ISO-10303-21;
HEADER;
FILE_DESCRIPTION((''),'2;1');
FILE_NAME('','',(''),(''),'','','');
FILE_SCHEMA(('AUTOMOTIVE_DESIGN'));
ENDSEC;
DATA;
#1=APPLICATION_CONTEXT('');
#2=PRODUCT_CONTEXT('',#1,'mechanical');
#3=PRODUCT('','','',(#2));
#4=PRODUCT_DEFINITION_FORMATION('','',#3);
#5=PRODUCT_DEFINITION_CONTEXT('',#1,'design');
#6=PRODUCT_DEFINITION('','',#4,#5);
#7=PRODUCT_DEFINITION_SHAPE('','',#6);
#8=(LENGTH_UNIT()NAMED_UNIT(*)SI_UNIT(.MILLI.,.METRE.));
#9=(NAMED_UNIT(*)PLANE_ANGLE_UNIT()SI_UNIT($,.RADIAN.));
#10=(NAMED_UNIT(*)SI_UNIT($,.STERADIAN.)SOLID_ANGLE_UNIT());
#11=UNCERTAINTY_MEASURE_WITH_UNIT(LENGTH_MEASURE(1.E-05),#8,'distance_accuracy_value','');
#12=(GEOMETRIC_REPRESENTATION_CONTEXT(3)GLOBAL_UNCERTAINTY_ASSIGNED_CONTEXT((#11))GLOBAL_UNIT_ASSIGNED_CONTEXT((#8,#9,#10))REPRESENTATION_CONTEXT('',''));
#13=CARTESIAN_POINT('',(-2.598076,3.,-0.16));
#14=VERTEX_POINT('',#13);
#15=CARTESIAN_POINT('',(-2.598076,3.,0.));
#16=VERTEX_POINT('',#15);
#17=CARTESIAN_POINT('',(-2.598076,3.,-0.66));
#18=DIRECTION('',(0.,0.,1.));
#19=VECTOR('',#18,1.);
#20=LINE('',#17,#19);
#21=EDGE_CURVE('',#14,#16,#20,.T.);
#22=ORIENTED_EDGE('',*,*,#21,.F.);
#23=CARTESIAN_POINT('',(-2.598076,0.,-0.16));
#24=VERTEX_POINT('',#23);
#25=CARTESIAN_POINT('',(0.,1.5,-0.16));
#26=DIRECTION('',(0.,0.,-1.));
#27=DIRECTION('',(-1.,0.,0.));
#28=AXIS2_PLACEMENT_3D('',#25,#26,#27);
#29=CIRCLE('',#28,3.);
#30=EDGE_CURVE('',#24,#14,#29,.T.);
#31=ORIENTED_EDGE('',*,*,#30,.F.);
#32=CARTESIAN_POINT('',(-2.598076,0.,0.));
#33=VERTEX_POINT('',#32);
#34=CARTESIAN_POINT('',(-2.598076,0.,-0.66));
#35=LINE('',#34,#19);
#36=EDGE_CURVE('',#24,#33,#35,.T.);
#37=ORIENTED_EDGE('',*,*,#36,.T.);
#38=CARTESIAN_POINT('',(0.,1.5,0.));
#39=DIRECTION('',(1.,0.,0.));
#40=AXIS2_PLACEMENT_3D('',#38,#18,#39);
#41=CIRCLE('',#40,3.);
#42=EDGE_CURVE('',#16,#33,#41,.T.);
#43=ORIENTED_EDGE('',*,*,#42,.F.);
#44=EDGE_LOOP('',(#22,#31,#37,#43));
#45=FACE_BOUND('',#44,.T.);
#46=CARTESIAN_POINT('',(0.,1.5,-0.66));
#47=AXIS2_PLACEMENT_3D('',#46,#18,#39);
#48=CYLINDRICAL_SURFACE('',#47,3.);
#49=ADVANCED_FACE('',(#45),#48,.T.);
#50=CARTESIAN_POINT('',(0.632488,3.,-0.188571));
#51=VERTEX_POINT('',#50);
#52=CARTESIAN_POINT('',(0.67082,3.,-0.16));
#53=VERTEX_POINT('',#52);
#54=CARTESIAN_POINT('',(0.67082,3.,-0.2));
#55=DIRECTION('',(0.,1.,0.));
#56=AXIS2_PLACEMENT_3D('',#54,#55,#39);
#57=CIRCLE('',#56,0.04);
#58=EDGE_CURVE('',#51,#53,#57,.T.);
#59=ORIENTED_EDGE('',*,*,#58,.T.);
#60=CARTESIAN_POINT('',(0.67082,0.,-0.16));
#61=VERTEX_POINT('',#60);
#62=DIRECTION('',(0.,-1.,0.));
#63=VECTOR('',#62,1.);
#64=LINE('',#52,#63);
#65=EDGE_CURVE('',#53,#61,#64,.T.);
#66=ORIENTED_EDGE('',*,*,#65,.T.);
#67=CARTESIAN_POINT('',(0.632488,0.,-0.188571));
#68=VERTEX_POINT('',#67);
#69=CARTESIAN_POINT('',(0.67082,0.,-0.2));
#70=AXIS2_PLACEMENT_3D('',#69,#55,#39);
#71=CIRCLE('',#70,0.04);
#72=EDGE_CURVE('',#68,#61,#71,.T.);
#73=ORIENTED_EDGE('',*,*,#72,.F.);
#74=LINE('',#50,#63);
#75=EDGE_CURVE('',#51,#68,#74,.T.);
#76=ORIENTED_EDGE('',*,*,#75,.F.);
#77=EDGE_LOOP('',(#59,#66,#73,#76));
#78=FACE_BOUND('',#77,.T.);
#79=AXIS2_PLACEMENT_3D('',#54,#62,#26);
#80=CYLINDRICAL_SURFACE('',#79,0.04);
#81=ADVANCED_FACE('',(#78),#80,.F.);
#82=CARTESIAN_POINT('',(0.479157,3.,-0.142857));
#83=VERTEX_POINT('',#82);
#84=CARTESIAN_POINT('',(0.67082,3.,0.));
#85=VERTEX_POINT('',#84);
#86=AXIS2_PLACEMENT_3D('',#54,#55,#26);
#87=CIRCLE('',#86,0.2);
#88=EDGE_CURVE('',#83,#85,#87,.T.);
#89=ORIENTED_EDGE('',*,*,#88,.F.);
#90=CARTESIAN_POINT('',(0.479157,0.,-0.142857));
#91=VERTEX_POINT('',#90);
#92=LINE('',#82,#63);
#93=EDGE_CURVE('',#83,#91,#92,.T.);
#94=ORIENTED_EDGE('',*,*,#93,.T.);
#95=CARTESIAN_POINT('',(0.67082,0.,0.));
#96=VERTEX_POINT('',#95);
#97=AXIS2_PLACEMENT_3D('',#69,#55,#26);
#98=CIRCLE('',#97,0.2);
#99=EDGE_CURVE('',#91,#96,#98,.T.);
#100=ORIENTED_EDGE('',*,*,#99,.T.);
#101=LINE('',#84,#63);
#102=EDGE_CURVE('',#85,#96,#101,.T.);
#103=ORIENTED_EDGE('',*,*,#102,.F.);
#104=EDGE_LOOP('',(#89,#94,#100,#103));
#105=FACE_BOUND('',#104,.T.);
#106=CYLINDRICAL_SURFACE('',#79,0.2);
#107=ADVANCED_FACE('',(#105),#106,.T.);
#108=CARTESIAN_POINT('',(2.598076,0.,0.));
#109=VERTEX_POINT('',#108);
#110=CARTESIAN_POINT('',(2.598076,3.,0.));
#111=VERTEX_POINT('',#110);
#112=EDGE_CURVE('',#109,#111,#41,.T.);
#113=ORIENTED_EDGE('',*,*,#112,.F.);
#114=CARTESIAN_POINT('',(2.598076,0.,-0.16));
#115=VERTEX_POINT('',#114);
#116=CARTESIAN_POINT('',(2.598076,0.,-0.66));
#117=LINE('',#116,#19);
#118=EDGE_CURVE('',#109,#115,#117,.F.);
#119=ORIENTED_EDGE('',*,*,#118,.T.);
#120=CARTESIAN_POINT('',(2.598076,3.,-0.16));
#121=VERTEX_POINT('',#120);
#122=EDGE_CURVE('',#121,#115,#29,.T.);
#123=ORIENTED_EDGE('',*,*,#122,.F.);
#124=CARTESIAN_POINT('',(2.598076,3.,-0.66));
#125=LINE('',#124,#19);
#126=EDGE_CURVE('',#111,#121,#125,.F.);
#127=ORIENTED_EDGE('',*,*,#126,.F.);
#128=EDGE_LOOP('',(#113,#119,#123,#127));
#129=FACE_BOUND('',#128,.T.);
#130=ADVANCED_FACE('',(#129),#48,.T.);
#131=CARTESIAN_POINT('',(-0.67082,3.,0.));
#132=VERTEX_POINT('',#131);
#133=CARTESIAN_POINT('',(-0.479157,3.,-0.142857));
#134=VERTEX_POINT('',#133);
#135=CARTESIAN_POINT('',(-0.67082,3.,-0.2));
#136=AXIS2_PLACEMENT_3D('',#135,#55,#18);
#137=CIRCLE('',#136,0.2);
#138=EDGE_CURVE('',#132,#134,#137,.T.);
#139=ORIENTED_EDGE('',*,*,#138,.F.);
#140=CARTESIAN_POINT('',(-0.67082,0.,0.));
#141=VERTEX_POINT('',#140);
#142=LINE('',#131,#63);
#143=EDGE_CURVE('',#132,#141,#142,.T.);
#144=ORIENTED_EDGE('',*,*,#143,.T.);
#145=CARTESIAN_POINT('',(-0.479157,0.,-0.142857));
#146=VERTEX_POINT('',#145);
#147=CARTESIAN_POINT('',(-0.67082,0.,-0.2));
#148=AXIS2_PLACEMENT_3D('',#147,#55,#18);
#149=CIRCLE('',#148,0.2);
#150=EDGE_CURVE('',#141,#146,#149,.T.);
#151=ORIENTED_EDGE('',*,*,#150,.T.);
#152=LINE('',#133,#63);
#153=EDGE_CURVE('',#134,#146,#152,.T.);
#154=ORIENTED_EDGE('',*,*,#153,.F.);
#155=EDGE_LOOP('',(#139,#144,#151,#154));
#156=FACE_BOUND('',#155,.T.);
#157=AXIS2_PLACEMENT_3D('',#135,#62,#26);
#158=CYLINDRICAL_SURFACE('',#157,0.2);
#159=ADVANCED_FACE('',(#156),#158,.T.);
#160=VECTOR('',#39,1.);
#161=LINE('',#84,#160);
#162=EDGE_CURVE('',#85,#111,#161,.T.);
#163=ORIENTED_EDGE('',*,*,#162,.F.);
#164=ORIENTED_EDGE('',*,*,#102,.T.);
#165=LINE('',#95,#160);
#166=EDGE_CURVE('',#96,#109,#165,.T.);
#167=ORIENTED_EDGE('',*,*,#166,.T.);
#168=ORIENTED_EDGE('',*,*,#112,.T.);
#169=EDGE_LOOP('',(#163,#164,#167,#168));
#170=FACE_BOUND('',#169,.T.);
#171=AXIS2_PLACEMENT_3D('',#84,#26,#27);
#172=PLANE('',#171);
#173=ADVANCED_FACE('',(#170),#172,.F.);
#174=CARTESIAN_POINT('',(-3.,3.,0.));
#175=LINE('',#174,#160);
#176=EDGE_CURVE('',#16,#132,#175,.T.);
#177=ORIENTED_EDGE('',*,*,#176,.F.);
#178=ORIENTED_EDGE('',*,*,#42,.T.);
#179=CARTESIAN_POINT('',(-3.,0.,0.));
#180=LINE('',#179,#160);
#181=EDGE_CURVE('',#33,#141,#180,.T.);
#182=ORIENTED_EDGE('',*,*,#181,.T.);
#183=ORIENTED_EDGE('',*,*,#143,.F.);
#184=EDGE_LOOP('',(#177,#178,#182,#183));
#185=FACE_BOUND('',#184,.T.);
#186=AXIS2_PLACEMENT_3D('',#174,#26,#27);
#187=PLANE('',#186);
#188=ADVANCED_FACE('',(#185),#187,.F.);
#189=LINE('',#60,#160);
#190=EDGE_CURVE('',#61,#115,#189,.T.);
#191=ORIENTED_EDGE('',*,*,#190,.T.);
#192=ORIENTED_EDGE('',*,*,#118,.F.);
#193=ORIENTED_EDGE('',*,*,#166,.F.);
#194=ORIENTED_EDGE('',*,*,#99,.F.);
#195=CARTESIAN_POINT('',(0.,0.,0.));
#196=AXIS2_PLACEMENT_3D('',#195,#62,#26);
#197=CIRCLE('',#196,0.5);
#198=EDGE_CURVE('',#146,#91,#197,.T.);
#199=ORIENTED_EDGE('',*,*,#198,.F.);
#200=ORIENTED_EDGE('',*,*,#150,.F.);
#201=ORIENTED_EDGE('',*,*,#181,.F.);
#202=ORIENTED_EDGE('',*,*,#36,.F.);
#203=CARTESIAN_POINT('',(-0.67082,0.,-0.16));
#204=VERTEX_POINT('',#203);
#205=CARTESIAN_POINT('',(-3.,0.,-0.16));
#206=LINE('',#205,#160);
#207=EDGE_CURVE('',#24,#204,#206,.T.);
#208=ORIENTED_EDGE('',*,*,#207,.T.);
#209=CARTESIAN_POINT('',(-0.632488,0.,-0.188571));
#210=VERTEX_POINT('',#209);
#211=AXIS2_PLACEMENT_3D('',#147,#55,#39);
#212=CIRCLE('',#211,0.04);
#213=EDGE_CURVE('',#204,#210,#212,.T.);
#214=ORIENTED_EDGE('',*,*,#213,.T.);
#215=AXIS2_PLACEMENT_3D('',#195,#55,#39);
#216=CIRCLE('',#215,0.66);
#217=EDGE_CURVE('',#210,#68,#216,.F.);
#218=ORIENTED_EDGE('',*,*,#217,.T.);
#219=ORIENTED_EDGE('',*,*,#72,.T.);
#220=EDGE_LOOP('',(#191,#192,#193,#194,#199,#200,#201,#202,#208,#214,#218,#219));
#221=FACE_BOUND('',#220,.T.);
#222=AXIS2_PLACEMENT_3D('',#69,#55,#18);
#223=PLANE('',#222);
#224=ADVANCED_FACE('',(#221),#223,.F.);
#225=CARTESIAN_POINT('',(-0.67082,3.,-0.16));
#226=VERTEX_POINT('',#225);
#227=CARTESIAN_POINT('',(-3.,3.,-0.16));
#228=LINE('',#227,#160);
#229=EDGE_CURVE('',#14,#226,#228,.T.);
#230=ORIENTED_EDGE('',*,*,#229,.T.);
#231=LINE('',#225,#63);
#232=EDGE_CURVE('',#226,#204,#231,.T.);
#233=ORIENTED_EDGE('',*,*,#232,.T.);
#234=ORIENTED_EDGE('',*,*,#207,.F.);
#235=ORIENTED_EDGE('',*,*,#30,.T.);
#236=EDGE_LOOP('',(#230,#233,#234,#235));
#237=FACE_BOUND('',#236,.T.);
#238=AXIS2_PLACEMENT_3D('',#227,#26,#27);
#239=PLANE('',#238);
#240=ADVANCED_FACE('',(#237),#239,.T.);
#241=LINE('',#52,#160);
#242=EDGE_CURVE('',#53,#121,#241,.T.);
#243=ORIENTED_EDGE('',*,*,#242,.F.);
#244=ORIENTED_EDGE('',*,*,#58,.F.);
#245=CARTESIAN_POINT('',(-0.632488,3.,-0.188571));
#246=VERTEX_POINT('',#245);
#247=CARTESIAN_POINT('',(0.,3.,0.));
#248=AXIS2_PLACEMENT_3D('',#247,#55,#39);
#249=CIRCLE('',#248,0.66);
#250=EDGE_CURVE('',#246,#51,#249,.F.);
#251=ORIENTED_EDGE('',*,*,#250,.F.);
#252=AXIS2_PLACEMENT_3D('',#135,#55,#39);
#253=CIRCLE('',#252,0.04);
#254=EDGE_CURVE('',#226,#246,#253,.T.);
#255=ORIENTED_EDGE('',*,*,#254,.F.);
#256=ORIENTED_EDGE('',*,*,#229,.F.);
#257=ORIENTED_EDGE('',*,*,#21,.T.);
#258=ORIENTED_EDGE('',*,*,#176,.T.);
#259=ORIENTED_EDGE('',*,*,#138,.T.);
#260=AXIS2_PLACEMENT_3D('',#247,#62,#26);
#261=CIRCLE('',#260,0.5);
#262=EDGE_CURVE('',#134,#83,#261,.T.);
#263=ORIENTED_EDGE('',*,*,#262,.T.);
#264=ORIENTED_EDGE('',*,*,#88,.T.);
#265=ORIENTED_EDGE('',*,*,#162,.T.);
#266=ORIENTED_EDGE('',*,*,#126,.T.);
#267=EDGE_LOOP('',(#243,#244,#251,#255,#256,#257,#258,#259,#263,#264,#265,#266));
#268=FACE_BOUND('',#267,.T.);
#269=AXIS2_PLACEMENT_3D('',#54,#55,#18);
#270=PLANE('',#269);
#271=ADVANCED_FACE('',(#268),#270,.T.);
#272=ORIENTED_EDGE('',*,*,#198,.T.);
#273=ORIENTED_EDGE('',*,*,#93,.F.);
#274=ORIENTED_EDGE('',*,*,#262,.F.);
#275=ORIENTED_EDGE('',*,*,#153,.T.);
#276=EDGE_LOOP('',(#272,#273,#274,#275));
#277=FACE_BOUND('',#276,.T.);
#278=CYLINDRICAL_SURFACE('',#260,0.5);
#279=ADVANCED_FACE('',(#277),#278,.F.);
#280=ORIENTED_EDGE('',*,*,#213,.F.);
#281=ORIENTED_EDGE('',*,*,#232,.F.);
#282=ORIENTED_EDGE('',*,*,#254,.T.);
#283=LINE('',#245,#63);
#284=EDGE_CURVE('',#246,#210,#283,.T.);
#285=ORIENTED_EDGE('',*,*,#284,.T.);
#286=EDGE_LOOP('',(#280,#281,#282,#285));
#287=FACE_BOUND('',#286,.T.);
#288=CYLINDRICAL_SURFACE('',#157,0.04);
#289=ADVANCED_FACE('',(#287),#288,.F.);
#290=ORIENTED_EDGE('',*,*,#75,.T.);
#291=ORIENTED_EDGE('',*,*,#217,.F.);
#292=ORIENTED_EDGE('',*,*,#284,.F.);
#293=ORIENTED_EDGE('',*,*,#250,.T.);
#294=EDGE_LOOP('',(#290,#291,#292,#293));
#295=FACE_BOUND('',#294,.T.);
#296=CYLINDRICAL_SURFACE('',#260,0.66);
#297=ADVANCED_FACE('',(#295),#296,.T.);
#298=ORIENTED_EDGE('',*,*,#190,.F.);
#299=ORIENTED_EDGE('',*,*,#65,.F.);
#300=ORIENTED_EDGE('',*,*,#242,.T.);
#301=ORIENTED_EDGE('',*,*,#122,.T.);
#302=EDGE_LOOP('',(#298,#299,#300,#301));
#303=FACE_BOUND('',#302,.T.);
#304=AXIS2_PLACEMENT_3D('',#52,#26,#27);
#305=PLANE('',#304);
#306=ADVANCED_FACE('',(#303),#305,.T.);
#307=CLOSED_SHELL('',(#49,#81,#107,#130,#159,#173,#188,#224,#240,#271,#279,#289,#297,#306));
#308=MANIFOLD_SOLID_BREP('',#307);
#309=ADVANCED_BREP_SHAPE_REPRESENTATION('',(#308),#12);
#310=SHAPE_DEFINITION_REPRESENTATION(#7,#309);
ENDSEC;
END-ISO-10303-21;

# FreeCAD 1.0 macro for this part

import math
import FreeCAD as App
import Part
import Sketcher

V = App.Vector
Q = App.Units.Quantity

doc = App.newDocument("Part")
params = doc.addObject("Spreadsheet::Sheet", "Params")
for row, (alias, value) in enumerate([
    ("sketch1_radius", "0.2 mm"),
    ("sketch1_radius2", "0.5 mm"),
    ("sketch1_radius3", "0.04 mm"),
    ("pad1_length", "3 mm"),
    ("sketch2_diameter", "6 mm"),
], start=1):
    params.set(f"A{row}", alias)
    params.set(f"B{row}", "=" + value)
    params.setAlias(f"B{row}", alias)

body = doc.addObject("PartDesign::Body", "Body")

# Sketch on XZ plane
sketch1 = body.newObject("Sketcher::SketchObject", "Sketch")
sketch1.AttachmentSupport = (doc.getObject("XZ_Plane"), [""])
sketch1.MapMode = "FlatFace"
sketch1.addGeometry([
    Part.LineSegment(V(-3, 0, 0), V(-0.671, 0, 0)),  # 0
    Part.ArcOfCircle(Part.Circle(V(-0.671, -0.2, 0), V(0, 0, 1), 0.2), math.radians(17), math.radians(90)),  # 1
    Part.ArcOfCircle(Part.Circle(V(0, 0, 0), V(0, 0, 1), 0.5), math.radians(-163), math.radians(-17)),  # 2
    Part.ArcOfCircle(Part.Circle(V(0.671, -0.2, 0), V(0, 0, 1), 0.2), math.radians(90), math.radians(163)),  # 3
    Part.LineSegment(V(0.671, 0, 0), V(3, 0, 0)),  # 4
    Part.LineSegment(V(3, 0, 0), V(3, -0.16, 0)),  # 5
    Part.LineSegment(V(3, -0.16, 0), V(0.671, -0.16, 0)),  # 6
    Part.ArcOfCircle(Part.Circle(V(0.671, -0.2, 0), V(0, 0, 1), 0.04), math.radians(90), math.radians(163)),  # 7
    Part.ArcOfCircle(Part.Circle(V(0, 0, 0), V(0, 0, 1), 0.66), math.radians(-163), math.radians(-17)),  # 8
    Part.ArcOfCircle(Part.Circle(V(-0.671, -0.2, 0), V(0, 0, 1), 0.04), math.radians(17), math.radians(90)),  # 9
    Part.LineSegment(V(-0.671, -0.16, 0), V(-3, -0.16, 0)),  # 10
    Part.LineSegment(V(-3, -0.16, 0), V(-3, 0, 0)),  # 11
], False)
sketch1.addConstraint([
    Sketcher.Constraint("Tangent", 0, 2, 1, 2),
    Sketcher.Constraint("Tangent", 1, 1, 2, 1),
    Sketcher.Constraint("Tangent", 2, 2, 3, 2),
    Sketcher.Constraint("Tangent", 3, 1, 4, 1),
    Sketcher.Constraint("Coincident", 4, 2, 5, 1),
    Sketcher.Constraint("Coincident", 5, 2, 6, 1),
    Sketcher.Constraint("Tangent", 6, 2, 7, 1),
    Sketcher.Constraint("Tangent", 7, 2, 8, 2),
    Sketcher.Constraint("Tangent", 8, 1, 9, 1),
    Sketcher.Constraint("Tangent", 9, 2, 10, 1),
    Sketcher.Constraint("Coincident", 10, 2, 11, 1),
    Sketcher.Constraint("Coincident", 11, 2, 0, 1),
    Sketcher.Constraint("Horizontal", 0),
    Sketcher.Constraint("Horizontal", 4),
    Sketcher.Constraint("Vertical", 5),
    Sketcher.Constraint("Horizontal", 6),
    Sketcher.Constraint("Horizontal", 10),
    Sketcher.Constraint("Vertical", 11),
    Sketcher.Constraint("Coincident", 2, 3, -1, 1),
    Sketcher.Constraint("Coincident", 8, 3, -1, 1),
    Sketcher.Constraint("Coincident", 7, 3, 3, 3),
    Sketcher.Constraint("Coincident", 9, 3, 1, 3),
    Sketcher.Constraint("Equal", 1, 3),
    Sketcher.Constraint("Symmetric", 0, 2, 3, 1, -1, 1),
    Sketcher.Constraint("Equal", 0, 4),
    Sketcher.Constraint("Radius", 1, Q("0.2 mm")),
    Sketcher.Constraint("Radius", 2, Q("0.5 mm")),
    Sketcher.Constraint("Radius", 7, Q("0.04 mm")),
    Sketcher.Constraint("DistanceX", -1, 1, 4, 2, Q("3 mm")),
])
sketch1.setExpression("Constraints[25]", "Params.sketch1_radius")
sketch1.setExpression("Constraints[26]", "Params.sketch1_radius2")
sketch1.setExpression("Constraints[27]", "Params.sketch1_radius3")
pad1 = body.newObject("PartDesign::Pad", "Pad")
pad1.Profile = sketch1
pad1.setExpression("Length", "Params.pad1_length")
pad1.Reversed = True

# Sketch on XY plane
sketch2 = body.newObject("Sketcher::SketchObject", "Sketch001")
sketch2.AttachmentSupport = (doc.getObject("XY_Plane"), [""])
sketch2.MapMode = "FlatFace"
sketch2.addGeometry([
    Part.LineSegment(V(-4.7, 4.7, 0), V(-4.7, -1.7, 0)),  # 0
    Part.LineSegment(V(-4.7, -1.7, 0), V(4.7, -1.7, 0)),  # 1
    Part.LineSegment(V(4.7, -1.7, 0), V(4.7, 4.7, 0)),  # 2
    Part.LineSegment(V(4.7, 4.7, 0), V(-4.7, 4.7, 0)),  # 3
    Part.Circle(V(0, 1.5, 0), V(0, 0, 1), 3),  # 4
], False)
sketch2.addConstraint([
    Sketcher.Constraint("Coincident", 0, 2, 1, 1),
    Sketcher.Constraint("Coincident", 1, 2, 2, 1),
    Sketcher.Constraint("Coincident", 2, 2, 3, 1),
    Sketcher.Constraint("Coincident", 3, 2, 0, 1),
    Sketcher.Constraint("Vertical", 0),
    Sketcher.Constraint("Horizontal", 1),
    Sketcher.Constraint("Vertical", 2),
    Sketcher.Constraint("Horizontal", 3),
    Sketcher.Constraint("PointOnObject", 4, 3, -2),
    Sketcher.Constraint("Diameter", 4, Q("6 mm")),
    Sketcher.Constraint("DistanceY", -1, 1, 4, 3, Q("1.5 mm")),
    Sketcher.Constraint("DistanceX", 1, 1, 1, 2, Q("9.348 mm")),
    Sketcher.Constraint("DistanceY", 0, 2, 0, 1, Q("6.348 mm")),
    Sketcher.Constraint("DistanceX", 0, 2, -1, 1, Q("4.674 mm")),
    Sketcher.Constraint("DistanceY", 0, 2, -1, 1, Q("1.674 mm")),
])
sketch2.setExpression("Constraints[9]", "Params.sketch2_diameter")
pocket1 = body.newObject("PartDesign::Pocket", "Pocket")
pocket1.Profile = sketch2
pocket1.Type = "ThroughAll"

doc.recompute()
